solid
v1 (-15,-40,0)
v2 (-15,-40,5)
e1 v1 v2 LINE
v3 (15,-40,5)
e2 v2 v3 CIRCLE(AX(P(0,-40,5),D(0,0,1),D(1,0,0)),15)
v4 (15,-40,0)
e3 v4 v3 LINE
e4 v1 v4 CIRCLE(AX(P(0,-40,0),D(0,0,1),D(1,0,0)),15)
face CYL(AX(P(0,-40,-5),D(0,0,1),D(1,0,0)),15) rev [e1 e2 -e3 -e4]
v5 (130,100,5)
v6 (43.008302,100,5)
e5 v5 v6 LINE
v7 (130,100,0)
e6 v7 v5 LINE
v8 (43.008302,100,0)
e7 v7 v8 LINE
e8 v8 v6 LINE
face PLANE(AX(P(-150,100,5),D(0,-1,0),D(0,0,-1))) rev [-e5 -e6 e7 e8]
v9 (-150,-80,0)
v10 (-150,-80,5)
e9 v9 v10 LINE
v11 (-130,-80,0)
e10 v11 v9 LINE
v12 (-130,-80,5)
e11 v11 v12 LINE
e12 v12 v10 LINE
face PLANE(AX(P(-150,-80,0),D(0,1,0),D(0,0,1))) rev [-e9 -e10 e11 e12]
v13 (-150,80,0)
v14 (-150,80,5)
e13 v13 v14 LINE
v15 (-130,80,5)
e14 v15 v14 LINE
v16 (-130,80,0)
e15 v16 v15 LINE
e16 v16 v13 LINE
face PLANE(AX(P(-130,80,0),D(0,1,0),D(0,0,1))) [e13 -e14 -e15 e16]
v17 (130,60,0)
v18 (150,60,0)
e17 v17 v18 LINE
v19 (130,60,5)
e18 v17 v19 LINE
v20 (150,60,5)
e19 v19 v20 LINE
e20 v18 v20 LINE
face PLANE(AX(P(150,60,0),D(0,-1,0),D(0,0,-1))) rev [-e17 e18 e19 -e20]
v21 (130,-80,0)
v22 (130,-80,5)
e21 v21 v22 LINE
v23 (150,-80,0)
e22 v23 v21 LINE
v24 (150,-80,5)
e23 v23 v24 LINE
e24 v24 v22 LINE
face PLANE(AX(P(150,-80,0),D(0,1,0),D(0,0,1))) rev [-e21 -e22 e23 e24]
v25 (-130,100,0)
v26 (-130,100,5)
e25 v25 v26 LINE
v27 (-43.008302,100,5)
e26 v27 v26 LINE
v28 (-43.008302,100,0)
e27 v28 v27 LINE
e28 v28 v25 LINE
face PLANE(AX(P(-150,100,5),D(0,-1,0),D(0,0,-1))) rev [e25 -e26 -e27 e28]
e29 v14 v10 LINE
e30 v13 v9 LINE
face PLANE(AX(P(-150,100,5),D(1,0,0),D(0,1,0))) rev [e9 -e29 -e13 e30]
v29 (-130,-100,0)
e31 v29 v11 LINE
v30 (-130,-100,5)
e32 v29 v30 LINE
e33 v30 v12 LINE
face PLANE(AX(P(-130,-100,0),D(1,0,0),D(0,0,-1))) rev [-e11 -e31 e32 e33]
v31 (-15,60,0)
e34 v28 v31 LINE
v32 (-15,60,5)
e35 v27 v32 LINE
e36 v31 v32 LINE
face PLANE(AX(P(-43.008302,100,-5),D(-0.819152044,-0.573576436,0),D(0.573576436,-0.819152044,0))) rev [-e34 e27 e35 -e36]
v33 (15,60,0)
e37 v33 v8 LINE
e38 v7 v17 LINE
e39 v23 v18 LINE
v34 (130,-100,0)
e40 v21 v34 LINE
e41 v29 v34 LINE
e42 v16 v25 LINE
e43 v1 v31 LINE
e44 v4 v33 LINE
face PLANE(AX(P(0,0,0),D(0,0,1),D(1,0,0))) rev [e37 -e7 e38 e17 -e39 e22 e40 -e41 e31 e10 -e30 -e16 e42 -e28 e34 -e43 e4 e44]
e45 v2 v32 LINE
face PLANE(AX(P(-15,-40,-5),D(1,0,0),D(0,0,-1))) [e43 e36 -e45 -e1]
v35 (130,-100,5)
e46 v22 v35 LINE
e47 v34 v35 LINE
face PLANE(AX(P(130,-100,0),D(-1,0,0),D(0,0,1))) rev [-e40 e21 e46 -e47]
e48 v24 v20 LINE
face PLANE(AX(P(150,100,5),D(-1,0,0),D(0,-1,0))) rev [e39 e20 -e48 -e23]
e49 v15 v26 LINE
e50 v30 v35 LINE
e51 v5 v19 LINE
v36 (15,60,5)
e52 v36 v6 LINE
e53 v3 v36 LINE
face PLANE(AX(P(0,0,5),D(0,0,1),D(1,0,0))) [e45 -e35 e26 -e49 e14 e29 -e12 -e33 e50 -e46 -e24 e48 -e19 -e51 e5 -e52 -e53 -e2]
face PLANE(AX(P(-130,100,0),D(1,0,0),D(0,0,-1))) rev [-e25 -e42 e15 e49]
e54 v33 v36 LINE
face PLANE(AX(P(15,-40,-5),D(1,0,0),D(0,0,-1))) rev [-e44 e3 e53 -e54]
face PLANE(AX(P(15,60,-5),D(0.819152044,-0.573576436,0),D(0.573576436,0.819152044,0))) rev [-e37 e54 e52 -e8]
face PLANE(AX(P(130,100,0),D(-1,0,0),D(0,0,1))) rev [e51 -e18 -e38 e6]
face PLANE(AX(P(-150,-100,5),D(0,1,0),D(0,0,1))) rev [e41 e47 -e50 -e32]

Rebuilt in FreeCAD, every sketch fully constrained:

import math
import FreeCAD as App
import Part
import Sketcher
Q = App.Units.Quantity

doc = App.newDocument("Part")
body = doc.addObject("PartDesign::Body", "Body")

# Sketch on XY plane
sketch1 = body.newObject("Sketcher::SketchObject", "Sketch")
sketch1.AttachmentSupport = (doc.getObject("XY_Plane"), [""])
sketch1.MapMode = "FlatFace"
sketch1.addGeometry([
    Part.LineSegment(App.Vector(-150, 100, 0), App.Vector(-150, -100, 0)),
    Part.LineSegment(App.Vector(-150, -100, 0), App.Vector(150, -100, 0)),
    Part.LineSegment(App.Vector(150, -100, 0), App.Vector(150, 100, 0)),
    Part.LineSegment(App.Vector(150, 100, 0), App.Vector(-150, 100, 0)),
], False)
sketch1.addConstraint([
    Sketcher.Constraint("Coincident", 0, 2, 1, 1),
    Sketcher.Constraint("Coincident", 1, 2, 2, 1),
    Sketcher.Constraint("Coincident", 2, 2, 3, 1),
    Sketcher.Constraint("Coincident", 3, 2, 0, 1),
    Sketcher.Constraint("Vertical", 0),
    Sketcher.Constraint("Horizontal", 1),
    Sketcher.Constraint("Vertical", 2),
    Sketcher.Constraint("Horizontal", 3),
    Sketcher.Constraint("Symmetric", 0, 2, 2, 2, -1, 1),
    Sketcher.Constraint("DistanceX", 1, 1, 1, 2, Q("300 mm")),
    Sketcher.Constraint("DistanceY", 0, 2, 0, 1, Q("200 mm")),
])
pad1 = body.newObject("PartDesign::Pad", "Pad")
pad1.Profile = sketch1
pad1.Length = 5

# Sketch on XY plane
sketch2 = body.newObject("Sketcher::SketchObject", "Sketch001")
sketch2.AttachmentSupport = (doc.getObject("XY_Plane"), [""])
sketch2.MapMode = "FlatFace"
sketch2.AttachmentOffset = App.Placement(App.Vector(0, 0, 5), App.Rotation())
sketch2.addGeometry([
    Part.LineSegment(App.Vector(-150, -80, 0), App.Vector(-150, -100, 0)),  # 0
    Part.LineSegment(App.Vector(-150, -100, 0), App.Vector(-130, -100, 0)),  # 1
    Part.LineSegment(App.Vector(-130, -100, 0), App.Vector(-130, -80, 0)),  # 2
    Part.LineSegment(App.Vector(-130, -80, 0), App.Vector(-150, -80, 0)),  # 3
    Part.LineSegment(App.Vector(-150, 100, 0), App.Vector(-150, 60, 0)),  # 4
    Part.LineSegment(App.Vector(-150, 60, 0), App.Vector(-130, 60, 0)),  # 5
    Part.LineSegment(App.Vector(-130, 60, 0), App.Vector(-130, 100, 0)),  # 6
    Part.LineSegment(App.Vector(-130, 100, 0), App.Vector(-150, 100, 0)),  # 7
    Part.LineSegment(App.Vector(130, 100, 0), App.Vector(130, 60, 0)),  # 8
    Part.LineSegment(App.Vector(130, 60, 0), App.Vector(150, 60, 0)),  # 9
    Part.LineSegment(App.Vector(150, 60, 0), App.Vector(150, 100, 0)),  # 10
    Part.LineSegment(App.Vector(150, 100, 0), App.Vector(130, 100, 0)),  # 11
    Part.LineSegment(App.Vector(130, -80, 0), App.Vector(130, -100, 0)),  # 12
    Part.LineSegment(App.Vector(130, -100, 0), App.Vector(150, -100, 0)),  # 13
    Part.LineSegment(App.Vector(150, -100, 0), App.Vector(150, -80, 0)),  # 14
    Part.LineSegment(App.Vector(150, -80, 0), App.Vector(130, -80, 0)),  # 15
], False)
sketch2.addConstraint([
    Sketcher.Constraint("Coincident", 0, 2, 1, 1),
    Sketcher.Constraint("Coincident", 1, 2, 2, 1),
    Sketcher.Constraint("Coincident", 2, 2, 3, 1),
    Sketcher.Constraint("Coincident", 3, 2, 0, 1),
    Sketcher.Constraint("Coincident", 4, 2, 5, 1),
    Sketcher.Constraint("Coincident", 5, 2, 6, 1),
    Sketcher.Constraint("Coincident", 6, 2, 7, 1),
    Sketcher.Constraint("Coincident", 7, 2, 4, 1),
    Sketcher.Constraint("Coincident", 8, 2, 9, 1),
    Sketcher.Constraint("Coincident", 9, 2, 10, 1),
    Sketcher.Constraint("Coincident", 10, 2, 11, 1),
    Sketcher.Constraint("Coincident", 11, 2, 8, 1),
    Sketcher.Constraint("Coincident", 12, 2, 13, 1),
    Sketcher.Constraint("Coincident", 13, 2, 14, 1),
    Sketcher.Constraint("Coincident", 14, 2, 15, 1),
    Sketcher.Constraint("Coincident", 15, 2, 12, 1),
    Sketcher.Constraint("Vertical", 0),
    Sketcher.Constraint("Horizontal", 1),
    Sketcher.Constraint("Vertical", 2),
    Sketcher.Constraint("Horizontal", 3),
    Sketcher.Constraint("Vertical", 4),
    Sketcher.Constraint("Horizontal", 5),
    Sketcher.Constraint("Vertical", 6),
    Sketcher.Constraint("Horizontal", 7),
    Sketcher.Constraint("Vertical", 8),
    Sketcher.Constraint("Horizontal", 9),
    Sketcher.Constraint("Vertical", 10),
    Sketcher.Constraint("Horizontal", 11),
    Sketcher.Constraint("Vertical", 12),
    Sketcher.Constraint("Horizontal", 13),
    Sketcher.Constraint("Vertical", 14),
    Sketcher.Constraint("Horizontal", 15),
    Sketcher.Constraint("Symmetric", 0, 2, 10, 2, -1, 1),
    Sketcher.Constraint("Symmetric", 6, 2, 12, 2, -1, 1),
    Sketcher.Constraint("Symmetric", 5, 2, 8, 2, -2),
    Sketcher.Constraint("Symmetric", 7, 2, 10, 2, -2),
    Sketcher.Constraint("Symmetric", 3, 2, 14, 2, -2),
    Sketcher.Constraint("Vertical", 2, 2, 5, 2),
    Sketcher.Constraint("Equal", 15, 0),
    Sketcher.Constraint("DistanceX", 1, 1, 1, 2, Q("20 mm")),
    Sketcher.Constraint("DistanceY", 4, 2, 4, 1, Q("40 mm")),
    Sketcher.Constraint("DistanceX", 0, 2, -1, 1, Q("150 mm")),
    Sketcher.Constraint("DistanceY", 0, 2, -1, 1, Q("100 mm")),
])
pocket1 = body.newObject("PartDesign::Pocket", "Pocket")
pocket1.Profile = sketch2
pocket1.Length = 5

# Sketch on XY plane
sketch3 = body.newObject("Sketcher::SketchObject", "Sketch002")
sketch3.AttachmentSupport = (doc.getObject("XY_Plane"), [""])
sketch3.MapMode = "FlatFace"
sketch3.AttachmentOffset = App.Placement(App.Vector(0, 0, 5), App.Rotation())
sketch3.addGeometry([
    Part.LineSegment(App.Vector(-15, 60, 0), App.Vector(-15, -40, 0)),  # 0
    Part.ArcOfCircle(Part.Circle(App.Vector(0, -40, 0), App.Vector(0, 0, 1), 15), math.radians(180), math.radians(360)),  # 1
    Part.LineSegment(App.Vector(15, -40, 0), App.Vector(15, 60, 0)),  # 2
    Part.LineSegment(App.Vector(15, 60, 0), App.Vector(43, 100, 0)),  # 3
    Part.LineSegment(App.Vector(43, 100, 0), App.Vector(-43, 100, 0)),  # 4
    Part.LineSegment(App.Vector(-43, 100, 0), App.Vector(-15, 60, 0)),  # 5
], False)
sketch3.addConstraint([
    Sketcher.Constraint("Tangent", 0, 2, 1, 1),
    Sketcher.Constraint("Tangent", 1, 2, 2, 1),
    Sketcher.Constraint("Coincident", 2, 2, 3, 1),
    Sketcher.Constraint("Coincident", 3, 2, 4, 1),
    Sketcher.Constraint("Coincident", 4, 2, 5, 1),
    Sketcher.Constraint("Coincident", 5, 2, 0, 1),
    Sketcher.Constraint("Vertical", 0),
    Sketcher.Constraint("Vertical", 2),
    Sketcher.Constraint("Horizontal", 4),
    Sketcher.Constraint("Symmetric", 2, 2, 5, 2, -2),
    Sketcher.Constraint("Equal", 3, 5),
    Sketcher.Constraint("Radius", 1, Q("15 mm")),
    Sketcher.Constraint("DistanceY", 0, 2, 0, 1, Q("100 mm")),
    Sketcher.Constraint("Angle", 3, Q("55 deg")),
    Sketcher.Constraint("DistanceY", 1, 3, -1, 1, Q("40 mm")),
    Sketcher.Constraint("DistanceY", -1, 1, 3, 2, Q("100 mm")),
])
pocket2 = body.newObject("PartDesign::Pocket", "Pocket001")
pocket2.Profile = sketch3
pocket2.Length = 10

# Sketch on XY plane
sketch4 = body.newObject("Sketcher::SketchObject", "Sketch003")
sketch4.AttachmentSupport = (doc.getObject("XY_Plane"), [""])
sketch4.MapMode = "FlatFace"
sketch4.AttachmentOffset = App.Placement(App.Vector(0, 0, 5), App.Rotation())
sketch4.addGeometry([
    Part.LineSegment(App.Vector(-150, 80, 0), App.Vector(-150, 60, 0)),
    Part.LineSegment(App.Vector(-150, 60, 0), App.Vector(-130, 60, 0)),
    Part.LineSegment(App.Vector(-130, 60, 0), App.Vector(-130, 80, 0)),
    Part.LineSegment(App.Vector(-130, 80, 0), App.Vector(-150, 80, 0)),
], False)
sketch4.addConstraint([
    Sketcher.Constraint("Coincident", 0, 2, 1, 1),
    Sketcher.Constraint("Coincident", 1, 2, 2, 1),
    Sketcher.Constraint("Coincident", 2, 2, 3, 1),
    Sketcher.Constraint("Coincident", 3, 2, 0, 1),
    Sketcher.Constraint("Vertical", 0),
    Sketcher.Constraint("Horizontal", 1),
    Sketcher.Constraint("Vertical", 2),
    Sketcher.Constraint("Horizontal", 3),
    Sketcher.Constraint("Equal", 3, 0),
    Sketcher.Constraint("DistanceX", 1, 1, 1, 2, Q("20 mm")),
    Sketcher.Constraint("DistanceX", 0, 2, -1, 1, Q("150 mm")),
    Sketcher.Constraint("DistanceY", -1, 1, 0, 2, Q("60 mm")),
])
pad2 = body.newObject("PartDesign::Pad", "Pad001")
pad2.Profile = sketch4
pad2.Length = 5
pad2.Reversed = True

doc.recompute()
